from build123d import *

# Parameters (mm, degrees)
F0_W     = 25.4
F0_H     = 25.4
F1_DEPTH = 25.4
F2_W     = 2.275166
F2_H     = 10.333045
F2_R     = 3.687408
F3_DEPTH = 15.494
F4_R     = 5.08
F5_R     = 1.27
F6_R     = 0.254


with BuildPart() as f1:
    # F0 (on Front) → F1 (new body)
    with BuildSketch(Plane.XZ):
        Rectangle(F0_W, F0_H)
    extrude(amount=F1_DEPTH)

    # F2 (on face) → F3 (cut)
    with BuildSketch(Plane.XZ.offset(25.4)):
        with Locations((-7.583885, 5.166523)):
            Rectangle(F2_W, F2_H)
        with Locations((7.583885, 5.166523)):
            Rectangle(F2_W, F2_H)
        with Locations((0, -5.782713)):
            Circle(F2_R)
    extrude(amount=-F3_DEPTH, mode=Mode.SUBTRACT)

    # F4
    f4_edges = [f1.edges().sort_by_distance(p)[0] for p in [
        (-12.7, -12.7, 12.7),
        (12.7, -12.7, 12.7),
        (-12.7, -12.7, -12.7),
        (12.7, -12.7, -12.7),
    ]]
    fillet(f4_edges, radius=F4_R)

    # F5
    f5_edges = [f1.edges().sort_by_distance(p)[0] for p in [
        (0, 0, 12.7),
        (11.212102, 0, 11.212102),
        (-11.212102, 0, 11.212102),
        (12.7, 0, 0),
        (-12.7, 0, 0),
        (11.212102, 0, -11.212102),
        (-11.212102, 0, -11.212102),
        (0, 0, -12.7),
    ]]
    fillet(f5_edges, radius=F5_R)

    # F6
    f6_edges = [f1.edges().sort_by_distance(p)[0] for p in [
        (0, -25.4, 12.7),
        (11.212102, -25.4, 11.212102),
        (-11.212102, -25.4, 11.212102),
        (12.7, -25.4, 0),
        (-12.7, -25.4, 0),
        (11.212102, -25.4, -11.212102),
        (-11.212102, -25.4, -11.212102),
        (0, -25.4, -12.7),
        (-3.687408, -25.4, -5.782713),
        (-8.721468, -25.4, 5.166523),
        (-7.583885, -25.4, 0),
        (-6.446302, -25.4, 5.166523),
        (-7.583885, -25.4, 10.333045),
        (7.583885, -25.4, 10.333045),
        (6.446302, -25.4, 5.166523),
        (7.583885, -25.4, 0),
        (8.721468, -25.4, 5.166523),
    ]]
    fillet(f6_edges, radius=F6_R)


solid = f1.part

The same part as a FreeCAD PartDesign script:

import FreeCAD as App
import Part
import Sketcher

V = App.Vector
Q = App.Units.Quantity


def edges_at(feature, points):
    """Names of the edges that pass closest to the given points."""
    edges = feature.Shape.Edges
    near = lambda p: min(range(len(edges)), key=lambda i: edges[i].distToShape(Part.Vertex(*p))[0])
    return sorted({f"Edge{near(p) + 1}" for p in points})


def add_polygon(sketch, points):
    """Adds a closed chain of lines whose ends are joined by coincident constraints."""
    first, n = sketch.GeometryCount, len(points)
    for a, b in zip(points, points[1:] + points[:1]):
        sketch.addGeometry(Part.LineSegment(App.Vector(*a, 0), App.Vector(*b, 0)), False)
    for i in range(n):
        sketch.addConstraint(Sketcher.Constraint("Coincident", first + i, 2, first + (i + 1) % n, 1))

doc = App.newDocument("Part")
body = doc.addObject("PartDesign::Body", "Body")

# Sketch on XZ plane
sketch1 = doc.addObject("Sketcher::SketchObject", "Sketch")
body.addObject(sketch1)
sketch1.AttachmentSupport = (doc.XZ_Plane, [""])
sketch1.MapMode = "FlatFace"
add_polygon(sketch1, [(-13, 13), (-13, -13), (13, -13), (13, 13)])  # lines 0-3
sketch1.addConstraint([
    Sketcher.Constraint("Vertical", 0),
    Sketcher.Constraint("Horizontal", 1),
    Sketcher.Constraint("Vertical", 2),
    Sketcher.Constraint("Horizontal", 3),
    Sketcher.Constraint("Symmetric", 0, 2, 2, 2, -1, 1),
    Sketcher.Constraint("Equal", 3, 0),
    Sketcher.Constraint("DistanceX", 1, 1, 1, 2, Q("1 in")),
])
pad1 = doc.addObject("PartDesign::Pad", "Pad")
body.addObject(pad1)
pad1.Profile = sketch1
pad1.Length = Q("1 in")

# Sketch on XZ plane
sketch2 = doc.addObject("Sketcher::SketchObject", "Sketch001")
body.addObject(sketch2)
sketch2.AttachmentSupport = (doc.XZ_Plane, [""])
sketch2.MapMode = "FlatFace"
sketch2.AttachmentOffset = App.Placement(V(0, 0, 1 * 25.4), App.Rotation())
add_polygon(sketch2, [(-8.7, 10.3), (-8.7, 0), (-6.4, 0), (-6.4, 10.3)])  # lines 0-3
add_polygon(sketch2, [(6.4, 10.3), (6.4, 0), (8.7, 0), (8.7, 10.3)])  # lines 4-7
sketch2.addGeometry(Part.Circle(V(0, -5.8, 0), V(0, 0, 1), 3.7), False)  # 8
sketch2.addConstraint([
    Sketcher.Constraint("Vertical", 0),
    Sketcher.Constraint("Horizontal", 1),
    Sketcher.Constraint("Vertical", 2),
    Sketcher.Constraint("Horizontal", 3),
    Sketcher.Constraint("Vertical", 4),
    Sketcher.Constraint("Horizontal", 5),
    Sketcher.Constraint("Vertical", 6),
    Sketcher.Constraint("Horizontal", 7),
    Sketcher.Constraint("Symmetric", 1, 2, 4, 2, -1, 1),
    Sketcher.Constraint("Symmetric", 0, 2, 5, 2, -2),
    Sketcher.Constraint("PointOnObject", 8, 3, -2),
    Sketcher.Constraint("Horizontal", 3, 2, 6, 2),
    Sketcher.Constraint("Diameter", 8, Q("7.374816 mm")),
    Sketcher.Constraint("DistanceX", 1, 1, 1, 2, Q("2.275166 mm")),
    Sketcher.Constraint("DistanceY", 0, 2, 0, 1, Q("10.333045 mm")),
    Sketcher.Constraint("DistanceY", 8, 3, 2, 2, Q("16.115759 mm")),
    Sketcher.Constraint("DistanceX", 0, 2, 4, 2, Q("15.16777 mm")),
])
pocket1 = doc.addObject("PartDesign::Pocket", "Pocket")
body.addObject(pocket1)
pocket1.Profile = sketch2
pocket1.Length = Q("0.61 in")
doc.recompute()

fillet = doc.addObject("PartDesign::Fillet", "Fillet")
body.addObject(fillet)
fillet.Base = (pocket1, edges_at(pocket1, [
    (-12.7, -12.7, 12.7),
    (12.7, -12.7, 12.7),
    (-12.7, -12.7, -12.7),
    (12.7, -12.7, -12.7),
]))
fillet.Radius = Q("0.2 in")
doc.recompute()

fillet2 = doc.addObject("PartDesign::Fillet", "Fillet001")
body.addObject(fillet2)
fillet2.Base = (fillet, edges_at(fillet, [
    (0, 0, 12.7),
    (11.212, 0, 11.212),
    (-11.212, 0, 11.212),
    (12.7, 0, 0),
    (-12.7, 0, 0),
    (11.212, 0, -11.212),
    (-11.212, 0, -11.212),
    (0, 0, -12.7),
]))
fillet2.Radius = Q("0.05 in")
doc.recompute()

fillet3 = doc.addObject("PartDesign::Fillet", "Fillet002")
body.addObject(fillet3)
fillet3.Base = (fillet2, edges_at(fillet2, [
    (0, -25.4, 12.7),
    (11.212, -25.4, 11.212),
    (-11.212, -25.4, 11.212),
    (12.7, -25.4, 0),
    (-12.7, -25.4, 0),
    (11.212, -25.4, -11.212),
    (-11.212, -25.4, -11.212),
    (0, -25.4, -12.7),
    (-3.687, -25.4, -5.783),
    (-8.721, -25.4, 5.167),
    (-7.584, -25.4, 0),
    (-6.446, -25.4, 5.167),
    (-7.584, -25.4, 10.333),
    (7.584, -25.4, 10.333),
    (6.446, -25.4, 5.167),
    (7.584, -25.4, 0),
    (8.721, -25.4, 5.167),
]))
fillet3.Radius = Q("0.01 in")

doc.recompute()
